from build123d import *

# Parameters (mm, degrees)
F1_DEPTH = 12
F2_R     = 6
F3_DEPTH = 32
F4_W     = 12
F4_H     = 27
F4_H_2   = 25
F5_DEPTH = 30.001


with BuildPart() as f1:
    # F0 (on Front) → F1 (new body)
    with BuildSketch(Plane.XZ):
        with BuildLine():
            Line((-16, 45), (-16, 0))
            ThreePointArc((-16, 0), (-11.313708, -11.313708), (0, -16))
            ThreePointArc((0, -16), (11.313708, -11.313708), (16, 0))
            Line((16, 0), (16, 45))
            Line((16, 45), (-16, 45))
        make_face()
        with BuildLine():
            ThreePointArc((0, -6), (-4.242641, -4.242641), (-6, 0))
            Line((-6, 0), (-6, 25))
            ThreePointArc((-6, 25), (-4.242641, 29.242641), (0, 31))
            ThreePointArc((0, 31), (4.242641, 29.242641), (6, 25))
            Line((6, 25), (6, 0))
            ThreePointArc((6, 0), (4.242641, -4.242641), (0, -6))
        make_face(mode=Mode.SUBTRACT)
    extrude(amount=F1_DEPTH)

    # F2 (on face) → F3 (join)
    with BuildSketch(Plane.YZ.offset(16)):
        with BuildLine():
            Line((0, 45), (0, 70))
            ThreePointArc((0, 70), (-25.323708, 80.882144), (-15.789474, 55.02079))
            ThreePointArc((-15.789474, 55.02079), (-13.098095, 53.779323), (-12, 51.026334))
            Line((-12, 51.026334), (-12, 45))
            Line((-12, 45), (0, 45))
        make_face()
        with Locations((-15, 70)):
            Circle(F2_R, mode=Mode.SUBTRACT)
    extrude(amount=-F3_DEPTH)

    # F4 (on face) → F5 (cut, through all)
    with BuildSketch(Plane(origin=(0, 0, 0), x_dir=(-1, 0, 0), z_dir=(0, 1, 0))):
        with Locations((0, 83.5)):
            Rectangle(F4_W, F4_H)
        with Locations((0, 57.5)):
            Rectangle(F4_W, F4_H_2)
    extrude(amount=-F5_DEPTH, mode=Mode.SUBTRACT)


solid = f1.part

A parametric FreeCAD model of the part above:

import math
import FreeCAD as App
import Part
import Sketcher

V = App.Vector
Q = App.Units.Quantity

doc = App.newDocument("Part")
body = doc.addObject("PartDesign::Body", "Body")

sketch1 = body.newObject("Sketcher::SketchObject", "Sketch")
sketch1.AttachmentSupport = (doc.getObject("XZ_Plane"), [""])
sketch1.MapMode = "FlatFace"
sketch1.addGeometry([
    Part.LineSegment(V(-16, 45, 0), V(-16, 0, 0)),
    Part.ArcOfCircle(Part.Circle(V(0, 0, 0), V(0, 0, 1), 16), math.radians(-180), math.radians(-90)),
    Part.ArcOfCircle(Part.Circle(V(0, 0, 0), V(0, 0, 1), 16), math.radians(-90), math.radians(0)),
    Part.LineSegment(V(16, 0, 0), V(16, 45, 0)),
    Part.LineSegment(V(16, 45, 0), V(-16, 45, 0)),
    Part.ArcOfCircle(Part.Circle(V(0, 0, 0), V(0, 0, 1), 6), math.radians(-90), math.radians(0)),
    Part.ArcOfCircle(Part.Circle(V(0, 0, 0), V(0, 0, 1), 6), math.radians(180), math.radians(270)),
    Part.LineSegment(V(-6, 0, 0), V(-6, 25, 0)),
    Part.ArcOfCircle(Part.Circle(V(0, 25, 0), V(0, 0, 1), 6), math.radians(90), math.radians(180)),
    Part.ArcOfCircle(Part.Circle(V(0, 25, 0), V(0, 0, 1), 6), math.radians(0), math.radians(90)),
    Part.LineSegment(V(6, 25, 0), V(6, 0, 0)),
], False)
sketch1.addConstraint([
    Sketcher.Constraint("Tangent", 0, 2, 1, 1),
    Sketcher.Constraint("Tangent", 1, 2, 2, 1),
    Sketcher.Constraint("Tangent", 2, 2, 3, 1),
    Sketcher.Constraint("Coincident", 3, 2, 4, 1),
    Sketcher.Constraint("Coincident", 4, 2, 0, 1),
    Sketcher.Constraint("Tangent", 5, 1, 6, 2),
    Sketcher.Constraint("Tangent", 6, 1, 7, 1),
    Sketcher.Constraint("Tangent", 7, 2, 8, 2),
    Sketcher.Constraint("Tangent", 8, 1, 9, 2),
    Sketcher.Constraint("Tangent", 9, 1, 10, 1),
    Sketcher.Constraint("Tangent", 10, 2, 5, 2),
    Sketcher.Constraint("Vertical", 0),
    Sketcher.Constraint("Vertical", 3),
    Sketcher.Constraint("Horizontal", 4),
    Sketcher.Constraint("Vertical", 7),
    Sketcher.Constraint("Vertical", 10),
    Sketcher.Constraint("Coincident", 1, 3, -1, 1),
    Sketcher.Constraint("Coincident", 5, 3, -1, 1),
    Sketcher.Constraint("Equal", 1, 2),
    Sketcher.Constraint("Equal", 5, 6),
    Sketcher.Constraint("Equal", 6, 8),
    Sketcher.Constraint("PointOnObject", 1, 2, -2),
    Sketcher.Constraint("PointOnObject", 5, 1, -2),
    Sketcher.Constraint("PointOnObject", 8, 1, -2),
    Sketcher.Constraint("Radius", 1, Q("16.000002 mm")),
    Sketcher.Constraint("Radius", 5, Q("5.999999 mm")),
    Sketcher.Constraint("DistanceY", 0, 2, 0, 1, Q("45 mm")),
    Sketcher.Constraint("DistanceY", 7, 1, 7, 2, Q("25 mm")),
])
pad1 = body.newObject("PartDesign::Pad", "Pad")
pad1.Profile = sketch1
pad1.Length = 12

sketch2 = body.newObject("Sketcher::SketchObject", "Sketch001")
sketch2.AttachmentSupport = (doc.getObject("YZ_Plane"), [""])
sketch2.MapMode = "FlatFace"
sketch2.AttachmentOffset = App.Placement(V(0, 0, 16), App.Rotation())
sketch2.addGeometry([
    Part.LineSegment(V(0, 45, 0), V(0, 70, 0)),
    Part.ArcOfCircle(Part.Circle(V(-15, 70, 0), V(0, 0, 1), 15), math.radians(0), math.radians(267)),
    Part.ArcOfCircle(Part.Circle(V(-16, 51, 0), V(0, 0, 1), 4), math.radians(0), math.radians(87)),
    Part.LineSegment(V(-12, 51, 0), V(-12, 45, 0)),
    Part.LineSegment(V(-12, 45, 0), V(0, 45, 0)),
    Part.Circle(V(-15, 70, 0), V(0, 0, 1), 6),
], False)
sketch2.addConstraint([
    Sketcher.Constraint("Tangent", 0, 2, 1, 1),
    Sketcher.Constraint("Tangent", 1, 2, 2, 2),
    Sketcher.Constraint("Tangent", 2, 1, 3, 1),
    Sketcher.Constraint("Coincident", 3, 2, 4, 1),
    Sketcher.Constraint("Coincident", 4, 2, 0, 1),
    Sketcher.Constraint("Vertical", 0),
    Sketcher.Constraint("Vertical", 3),
    Sketcher.Constraint("Horizontal", 4),
    Sketcher.Constraint("Coincident", 5, 3, 1, 3),
    Sketcher.Constraint("PointOnObject", 0, 2, -2),
    Sketcher.Constraint("Diameter", 5, Q("12 mm")),
    Sketcher.Constraint("Radius", 1, Q("15 mm")),
    Sketcher.Constraint("Radius", 2, Q("4 mm")),
    Sketcher.Constraint("DistanceX", 4, 1, 4, 2, Q("12 mm")),
    Sketcher.Constraint("DistanceY", 0, 1, 0, 2, Q("25 mm")),
    Sketcher.Constraint("DistanceY", -1, 1, 1, 3, Q("70 mm")),
])
pad2 = body.newObject("PartDesign::Pad", "Pad001")
pad2.Profile = sketch2
pad2.Length = 32
pad2.Reversed = True

sketch3 = body.newObject("Sketcher::SketchObject", "Sketch002")
sketch3.AttachmentSupport = (doc.getObject("XZ_Plane"), [""])
sketch3.MapMode = "FlatFace"
sketch3.addGeometry([
    Part.LineSegment(V(6, 97, 0), V(6, 45, 0)),
    Part.LineSegment(V(6, 45, 0), V(-6, 45, 0)),
    Part.LineSegment(V(-6, 45, 0), V(-6, 97, 0)),
    Part.LineSegment(V(-6, 97, 0), V(6, 97, 0)),
], False)
sketch3.addConstraint([
    Sketcher.Constraint("Coincident", 0, 2, 1, 1),
    Sketcher.Constraint("Coincident", 1, 2, 2, 1),
    Sketcher.Constraint("Coincident", 2, 2, 3, 1),
    Sketcher.Constraint("Coincident", 3, 2, 0, 1),
    Sketcher.Constraint("Vertical", 0),
    Sketcher.Constraint("Horizontal", 1),
    Sketcher.Constraint("Vertical", 2),
    Sketcher.Constraint("Horizontal", 3),
    Sketcher.Constraint("DistanceX", 1, 2, 1, 1, Q("12 mm")),
    Sketcher.Constraint("DistanceY", 0, 2, 0, 1, Q("52 mm")),
    Sketcher.Constraint("DistanceX", -1, 1, 0, 2, Q("6 mm")),
    Sketcher.Constraint("DistanceY", -1, 1, 0, 2, Q("45 mm")),
])
pocket1 = body.newObject("PartDesign::Pocket", "Pocket")
pocket1.Profile = sketch3
pocket1.Type = "ThroughAll"
pocket1.Reversed = True

doc.recompute()
